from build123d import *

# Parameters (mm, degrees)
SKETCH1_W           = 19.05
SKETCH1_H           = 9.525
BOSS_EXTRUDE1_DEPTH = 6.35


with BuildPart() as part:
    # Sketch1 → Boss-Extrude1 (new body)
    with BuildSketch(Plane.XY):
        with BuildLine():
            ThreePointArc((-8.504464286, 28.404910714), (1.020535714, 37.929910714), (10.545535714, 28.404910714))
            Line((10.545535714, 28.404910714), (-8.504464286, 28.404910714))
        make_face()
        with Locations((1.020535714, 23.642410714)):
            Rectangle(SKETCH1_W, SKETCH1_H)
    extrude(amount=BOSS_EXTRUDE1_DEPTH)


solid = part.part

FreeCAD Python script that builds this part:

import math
import FreeCAD as App
import Part
import Sketcher

V = App.Vector
Q = App.Units.Quantity

doc = App.newDocument("Part")
params = doc.addObject("Spreadsheet::Sheet", "Params")
for row, (alias, value) in enumerate([
    ("sketch1_radius", "0.375 in"),
    ("sketch1_height", "0.375 in"),
    ("pad1_length", "0.25 in"),
], start=1):
    params.set(f"A{row}", alias)
    params.set(f"B{row}", "=" + value)
    params.setAlias(f"B{row}", alias)

body = doc.addObject("PartDesign::Body", "Body")

# Sketch on XY plane
sketch1 = doc.addObject("Sketcher::SketchObject", "Sketch")
body.addObject(sketch1)
sketch1.AttachmentSupport = (doc.XY_Plane, [""])
sketch1.MapMode = "FlatFace"
sketch1.addGeometry([
    Part.ArcOfCircle(Part.Circle(V(1, 28, 0), V(0, 0, 1), 10), math.radians(0), math.radians(180)),
    Part.LineSegment(V(-9, 28, 0), V(-9, 19, 0)),
    Part.LineSegment(V(-9, 19, 0), V(11, 19, 0)),
    Part.LineSegment(V(11, 19, 0), V(11, 28, 0)),
], False)
sketch1.addConstraint([
    Sketcher.Constraint("Tangent", 0, 2, 1, 1),
    Sketcher.Constraint("Coincident", 1, 2, 2, 1),
    Sketcher.Constraint("Coincident", 2, 2, 3, 1),
    Sketcher.Constraint("Tangent", 3, 2, 0, 1),
    Sketcher.Constraint("Vertical", 1),
    Sketcher.Constraint("Horizontal", 2),
    Sketcher.Constraint("Vertical", 3),
    Sketcher.Constraint("Radius", 0, Q("0.375 in")),
    Sketcher.Constraint("DistanceY", 1, 2, 1, 1, Q("0.375 in")),
    Sketcher.Constraint("DistanceY", -1, 1, 0, 3, Q("28.404911 mm")),
    Sketcher.Constraint("DistanceX", -1, 1, 0, 3, Q("1.020536 mm")),
])
sketch1.setExpression("Constraints[7]", "Params.sketch1_radius")
sketch1.setExpression("Constraints[8]", "Params.sketch1_height")
pad1 = doc.addObject("PartDesign::Pad", "Pad")
body.addObject(pad1)
pad1.Profile = sketch1
pad1.setExpression("Length", "Params.pad1_length")

doc.recompute()
